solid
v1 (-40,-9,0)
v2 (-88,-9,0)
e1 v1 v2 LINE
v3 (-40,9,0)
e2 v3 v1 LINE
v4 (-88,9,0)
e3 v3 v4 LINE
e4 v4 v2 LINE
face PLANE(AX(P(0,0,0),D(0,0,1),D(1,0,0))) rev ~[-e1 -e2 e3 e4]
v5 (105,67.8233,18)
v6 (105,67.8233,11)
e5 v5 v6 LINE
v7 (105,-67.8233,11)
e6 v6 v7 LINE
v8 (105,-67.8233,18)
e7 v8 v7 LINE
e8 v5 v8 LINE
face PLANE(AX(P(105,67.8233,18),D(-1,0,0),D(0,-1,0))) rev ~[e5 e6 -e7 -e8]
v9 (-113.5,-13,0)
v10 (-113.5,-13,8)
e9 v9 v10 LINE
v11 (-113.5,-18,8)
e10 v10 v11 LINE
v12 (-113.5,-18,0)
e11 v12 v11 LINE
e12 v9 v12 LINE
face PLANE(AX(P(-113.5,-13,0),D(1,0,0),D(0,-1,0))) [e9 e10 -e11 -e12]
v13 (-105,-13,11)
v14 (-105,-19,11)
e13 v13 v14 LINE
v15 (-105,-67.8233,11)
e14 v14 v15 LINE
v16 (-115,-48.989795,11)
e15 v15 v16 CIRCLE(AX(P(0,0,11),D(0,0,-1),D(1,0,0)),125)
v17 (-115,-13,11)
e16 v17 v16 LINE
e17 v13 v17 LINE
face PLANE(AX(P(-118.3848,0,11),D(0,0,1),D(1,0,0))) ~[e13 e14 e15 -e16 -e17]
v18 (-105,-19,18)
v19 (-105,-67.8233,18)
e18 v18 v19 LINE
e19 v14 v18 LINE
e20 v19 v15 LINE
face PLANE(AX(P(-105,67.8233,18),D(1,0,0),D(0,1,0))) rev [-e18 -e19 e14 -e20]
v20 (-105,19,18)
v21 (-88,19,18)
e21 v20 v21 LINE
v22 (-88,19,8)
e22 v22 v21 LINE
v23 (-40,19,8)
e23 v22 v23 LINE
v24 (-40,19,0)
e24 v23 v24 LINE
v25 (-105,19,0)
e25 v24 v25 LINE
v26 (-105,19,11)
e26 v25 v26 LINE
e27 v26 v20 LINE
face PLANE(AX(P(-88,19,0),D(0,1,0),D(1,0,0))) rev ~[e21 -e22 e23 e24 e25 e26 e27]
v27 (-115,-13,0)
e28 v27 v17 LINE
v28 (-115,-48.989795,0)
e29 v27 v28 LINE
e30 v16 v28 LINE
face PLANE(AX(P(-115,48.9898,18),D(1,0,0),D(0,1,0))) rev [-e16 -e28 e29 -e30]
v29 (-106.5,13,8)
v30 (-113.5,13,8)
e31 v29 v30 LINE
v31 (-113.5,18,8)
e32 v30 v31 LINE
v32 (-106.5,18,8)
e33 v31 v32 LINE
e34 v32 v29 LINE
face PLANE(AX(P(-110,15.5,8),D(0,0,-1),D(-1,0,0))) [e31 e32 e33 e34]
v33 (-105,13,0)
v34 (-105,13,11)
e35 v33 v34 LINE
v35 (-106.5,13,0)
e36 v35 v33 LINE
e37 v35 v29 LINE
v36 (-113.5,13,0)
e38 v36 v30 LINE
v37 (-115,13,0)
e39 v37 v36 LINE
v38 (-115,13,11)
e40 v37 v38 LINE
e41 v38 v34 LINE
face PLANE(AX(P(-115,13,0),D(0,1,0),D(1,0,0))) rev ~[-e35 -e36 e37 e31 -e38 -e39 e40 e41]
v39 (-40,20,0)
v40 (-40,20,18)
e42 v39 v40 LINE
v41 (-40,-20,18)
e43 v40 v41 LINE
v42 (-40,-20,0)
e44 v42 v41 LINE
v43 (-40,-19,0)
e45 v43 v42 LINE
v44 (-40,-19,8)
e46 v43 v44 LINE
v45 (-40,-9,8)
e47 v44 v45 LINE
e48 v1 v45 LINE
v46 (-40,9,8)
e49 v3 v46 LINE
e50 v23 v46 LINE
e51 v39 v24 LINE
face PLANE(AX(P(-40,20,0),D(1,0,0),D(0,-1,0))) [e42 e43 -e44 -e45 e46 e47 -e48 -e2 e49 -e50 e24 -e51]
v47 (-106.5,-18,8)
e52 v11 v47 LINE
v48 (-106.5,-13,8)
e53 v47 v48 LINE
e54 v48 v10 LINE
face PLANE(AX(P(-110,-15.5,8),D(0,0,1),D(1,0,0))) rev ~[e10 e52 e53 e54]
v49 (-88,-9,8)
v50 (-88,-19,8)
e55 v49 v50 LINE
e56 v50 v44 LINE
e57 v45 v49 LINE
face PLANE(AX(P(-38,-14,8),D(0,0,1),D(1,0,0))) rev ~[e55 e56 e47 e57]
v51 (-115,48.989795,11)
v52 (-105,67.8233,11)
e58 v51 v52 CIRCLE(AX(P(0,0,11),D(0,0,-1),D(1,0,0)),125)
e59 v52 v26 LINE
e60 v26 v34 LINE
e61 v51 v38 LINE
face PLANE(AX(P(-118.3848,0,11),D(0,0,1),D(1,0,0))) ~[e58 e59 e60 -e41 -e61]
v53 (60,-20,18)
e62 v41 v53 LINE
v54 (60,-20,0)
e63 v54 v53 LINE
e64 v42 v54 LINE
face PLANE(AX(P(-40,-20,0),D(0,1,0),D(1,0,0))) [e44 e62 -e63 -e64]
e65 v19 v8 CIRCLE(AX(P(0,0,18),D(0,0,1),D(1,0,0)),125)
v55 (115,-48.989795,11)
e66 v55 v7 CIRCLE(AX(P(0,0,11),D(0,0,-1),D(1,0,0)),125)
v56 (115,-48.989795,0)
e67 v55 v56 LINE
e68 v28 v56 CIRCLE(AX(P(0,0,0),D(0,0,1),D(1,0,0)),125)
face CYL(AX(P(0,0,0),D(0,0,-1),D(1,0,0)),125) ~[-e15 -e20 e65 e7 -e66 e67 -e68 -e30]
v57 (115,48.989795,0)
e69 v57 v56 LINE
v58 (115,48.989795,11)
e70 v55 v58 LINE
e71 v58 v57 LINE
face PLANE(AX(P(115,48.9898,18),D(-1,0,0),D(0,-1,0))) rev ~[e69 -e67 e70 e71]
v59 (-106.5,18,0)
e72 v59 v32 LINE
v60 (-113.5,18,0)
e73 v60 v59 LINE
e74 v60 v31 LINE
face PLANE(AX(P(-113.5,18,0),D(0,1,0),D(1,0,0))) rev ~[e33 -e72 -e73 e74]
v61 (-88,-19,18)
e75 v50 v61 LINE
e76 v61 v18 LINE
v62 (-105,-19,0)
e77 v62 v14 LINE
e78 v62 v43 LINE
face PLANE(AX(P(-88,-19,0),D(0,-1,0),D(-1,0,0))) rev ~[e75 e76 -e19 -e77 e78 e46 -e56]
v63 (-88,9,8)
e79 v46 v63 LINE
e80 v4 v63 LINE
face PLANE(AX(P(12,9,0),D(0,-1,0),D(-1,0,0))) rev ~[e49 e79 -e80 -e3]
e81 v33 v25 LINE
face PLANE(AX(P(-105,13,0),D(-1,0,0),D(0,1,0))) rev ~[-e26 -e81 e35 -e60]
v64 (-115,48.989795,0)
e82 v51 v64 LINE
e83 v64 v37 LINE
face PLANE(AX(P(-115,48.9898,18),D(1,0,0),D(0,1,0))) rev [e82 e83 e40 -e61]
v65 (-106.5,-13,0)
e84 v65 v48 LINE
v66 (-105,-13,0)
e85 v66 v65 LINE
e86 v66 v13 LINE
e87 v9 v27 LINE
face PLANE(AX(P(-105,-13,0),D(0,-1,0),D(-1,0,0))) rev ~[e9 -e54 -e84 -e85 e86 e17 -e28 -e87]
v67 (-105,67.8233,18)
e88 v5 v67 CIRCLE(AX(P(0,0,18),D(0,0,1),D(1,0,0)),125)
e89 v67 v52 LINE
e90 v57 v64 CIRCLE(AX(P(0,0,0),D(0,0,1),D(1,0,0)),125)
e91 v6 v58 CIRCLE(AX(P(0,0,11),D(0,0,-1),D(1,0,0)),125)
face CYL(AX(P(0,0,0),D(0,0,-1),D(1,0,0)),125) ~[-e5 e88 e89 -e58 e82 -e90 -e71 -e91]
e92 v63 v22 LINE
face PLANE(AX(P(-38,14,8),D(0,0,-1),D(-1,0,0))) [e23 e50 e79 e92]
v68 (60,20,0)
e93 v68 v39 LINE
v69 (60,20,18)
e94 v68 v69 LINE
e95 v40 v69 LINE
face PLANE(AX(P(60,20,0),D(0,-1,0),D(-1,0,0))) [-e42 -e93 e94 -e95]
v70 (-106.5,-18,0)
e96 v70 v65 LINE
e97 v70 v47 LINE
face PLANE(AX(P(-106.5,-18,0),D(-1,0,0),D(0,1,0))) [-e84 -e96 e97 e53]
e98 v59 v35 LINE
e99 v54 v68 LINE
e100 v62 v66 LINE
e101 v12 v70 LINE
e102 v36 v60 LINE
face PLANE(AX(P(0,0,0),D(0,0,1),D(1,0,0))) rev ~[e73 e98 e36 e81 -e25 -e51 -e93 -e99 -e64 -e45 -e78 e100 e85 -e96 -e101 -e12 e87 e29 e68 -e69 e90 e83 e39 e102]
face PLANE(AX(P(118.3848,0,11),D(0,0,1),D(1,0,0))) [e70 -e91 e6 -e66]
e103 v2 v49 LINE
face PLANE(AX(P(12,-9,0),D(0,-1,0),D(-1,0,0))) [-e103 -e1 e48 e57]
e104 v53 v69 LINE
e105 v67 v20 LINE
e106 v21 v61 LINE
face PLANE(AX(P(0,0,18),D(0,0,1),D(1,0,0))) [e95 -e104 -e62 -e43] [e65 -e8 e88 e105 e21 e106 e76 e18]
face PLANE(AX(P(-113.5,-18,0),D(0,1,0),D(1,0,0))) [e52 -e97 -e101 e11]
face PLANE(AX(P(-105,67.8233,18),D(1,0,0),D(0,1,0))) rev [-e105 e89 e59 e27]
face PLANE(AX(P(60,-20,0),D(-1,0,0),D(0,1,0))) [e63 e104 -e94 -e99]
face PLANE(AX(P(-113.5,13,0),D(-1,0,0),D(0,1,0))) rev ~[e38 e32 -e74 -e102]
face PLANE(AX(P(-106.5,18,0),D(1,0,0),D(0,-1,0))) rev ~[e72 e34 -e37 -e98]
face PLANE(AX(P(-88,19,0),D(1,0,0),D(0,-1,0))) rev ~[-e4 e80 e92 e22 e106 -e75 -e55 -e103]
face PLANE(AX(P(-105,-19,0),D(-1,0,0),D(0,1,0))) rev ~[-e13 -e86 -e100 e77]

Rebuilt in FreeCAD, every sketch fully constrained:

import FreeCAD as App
import Part
import Sketcher

V = App.Vector
Q = App.Units.Quantity

doc = App.newDocument("Part")
body = doc.addObject("PartDesign::Body", "Body")

# Sketch on XY plane
sketch1 = body.newObject("Sketcher::SketchObject", "Sketch")
sketch1.AttachmentSupport = (doc.getObject("XY_Plane"), [""])
sketch1.MapMode = "FlatFace"
sketch1.addGeometry(Part.Circle(V(0, 0, 0), V(0, 0, 1), 125), False)
sketch1.addConstraint([
    Sketcher.Constraint("Coincident", 0, 3, -1, 1),
    Sketcher.Constraint("Diameter", 0, Q("250 mm")),
])
pad1 = body.newObject("PartDesign::Pad", "Pad")
pad1.Profile = sketch1
pad1.Length = 18

# Sketch on XY plane
sketch2 = body.newObject("Sketcher::SketchObject", "Sketch001")
sketch2.AttachmentSupport = (doc.getObject("XY_Plane"), [""])
sketch2.MapMode = "FlatFace"
sketch2.AttachmentOffset = App.Placement(V(0, 0, 18), App.Rotation())
sketch2.addGeometry([
    Part.LineSegment(V(150, 49, 0), V(115, 49, 0)),
    Part.LineSegment(V(115, 49, 0), V(115, -49, 0)),
    Part.LineSegment(V(115, -49, 0), V(150, -49, 0)),
    Part.LineSegment(V(150, -49, 0), V(150, 49, 0)),
], False)
sketch2.addConstraint([
    Sketcher.Constraint("Coincident", 0, 2, 1, 1),
    Sketcher.Constraint("Coincident", 1, 2, 2, 1),
    Sketcher.Constraint("Coincident", 2, 2, 3, 1),
    Sketcher.Constraint("Coincident", 3, 2, 0, 1),
    Sketcher.Constraint("Horizontal", 0),
    Sketcher.Constraint("Vertical", 1),
    Sketcher.Constraint("Horizontal", 2),
    Sketcher.Constraint("Vertical", 3),
    Sketcher.Constraint("DistanceX", -1, 1, 0, 2, Q("115 mm")),
    Sketcher.Constraint("DistanceX", 0, 2, 0, 1, Q("34.504 mm")),
    Sketcher.Constraint("DistanceY", 1, 2, 1, 1, Q("97.9796 mm")),
    Sketcher.Constraint("DistanceY", -1, 1, 0, 2, Q("48.9898 mm")),
])
pocket1 = body.newObject("PartDesign::Pocket", "Pocket")
pocket1.Profile = sketch2
pocket1.Length = 18

# Sketch on XY plane
sketch3 = body.newObject("Sketcher::SketchObject", "Sketch002")
sketch3.AttachmentSupport = (doc.getObject("XY_Plane"), [""])
sketch3.MapMode = "FlatFace"
sketch3.AttachmentOffset = App.Placement(V(0, 0, 18), App.Rotation())
sketch3.addGeometry([
    Part.LineSegment(V(132, -68, 0), V(132, 68, 0)),
    Part.LineSegment(V(132, 68, 0), V(105, 68, 0)),
    Part.LineSegment(V(105, 68, 0), V(105, -68, 0)),
    Part.LineSegment(V(105, -68, 0), V(132, -68, 0)),
], False)
sketch3.addConstraint([
    Sketcher.Constraint("Coincident", 0, 2, 1, 1),
    Sketcher.Constraint("Coincident", 1, 2, 2, 1),
    Sketcher.Constraint("Coincident", 2, 2, 3, 1),
    Sketcher.Constraint("Coincident", 3, 2, 0, 1),
    Sketcher.Constraint("Vertical", 0),
    Sketcher.Constraint("Horizontal", 1),
    Sketcher.Constraint("Vertical", 2),
    Sketcher.Constraint("Horizontal", 3),
    Sketcher.Constraint("DistanceX", -1, 1, 1, 2, Q("105 mm")),
    Sketcher.Constraint("DistanceX", 1, 2, 1, 1, Q("26.7696 mm")),
    Sketcher.Constraint("DistanceY", 0, 1, 0, 2, Q("135.6466 mm")),
    Sketcher.Constraint("DistanceY", -1, 1, 0, 2, Q("67.8233 mm")),
])
pocket2 = body.newObject("PartDesign::Pocket", "Pocket001")
pocket2.Profile = sketch3
pocket2.Length = 7
doc.recompute()

mirrored = body.newObject("PartDesign::Mirrored", "Mirrored")
mirrored.Originals = [pocket1, pocket2]
mirrored.MirrorPlane = (doc.getObject("YZ_Plane"), [""])
body.Tip = mirrored

# Sketch on XY plane
sketch4 = body.newObject("Sketcher::SketchObject", "Sketch003")
sketch4.AttachmentSupport = (doc.getObject("XY_Plane"), [""])
sketch4.MapMode = "FlatFace"
sketch4.addGeometry([
    Part.LineSegment(V(-115, -13, 0), V(-115, 13, 0)),  # 0
    Part.LineSegment(V(-115, 13, 0), V(-105, 13, 0)),  # 1
    Part.LineSegment(V(-105, 13, 0), V(-105, 19, 0)),  # 2
    Part.LineSegment(V(-105, 19, 0), V(-88, 19, 0)),  # 3
    Part.LineSegment(V(-88, 19, 0), V(-88, -19, 0)),  # 4
    Part.LineSegment(V(-88, -19, 0), V(-105, -19, 0)),  # 5
    Part.LineSegment(V(-105, -19, 0), V(-105, -13, 0)),  # 6
    Part.LineSegment(V(-105, -13, 0), V(-115, -13, 0)),  # 7
], False)
sketch4.addConstraint([
    Sketcher.Constraint("Coincident", 0, 2, 1, 1),
    Sketcher.Constraint("Coincident", 1, 2, 2, 1),
    Sketcher.Constraint("Coincident", 2, 2, 3, 1),
    Sketcher.Constraint("Coincident", 3, 2, 4, 1),
    Sketcher.Constraint("Coincident", 4, 2, 5, 1),
    Sketcher.Constraint("Coincident", 5, 2, 6, 1),
    Sketcher.Constraint("Coincident", 6, 2, 7, 1),
    Sketcher.Constraint("Coincident", 7, 2, 0, 1),
    Sketcher.Constraint("Vertical", 0),
    Sketcher.Constraint("Horizontal", 1),
    Sketcher.Constraint("Vertical", 2),
    Sketcher.Constraint("Horizontal", 3),
    Sketcher.Constraint("Vertical", 4),
    Sketcher.Constraint("Horizontal", 5),
    Sketcher.Constraint("Vertical", 6),
    Sketcher.Constraint("Horizontal", 7),
    Sketcher.Constraint("Symmetric", 2, 2, 5, 2, -1),
    Sketcher.Constraint("Equal", 2, 6),
    Sketcher.Constraint("DistanceX", 1, 2, -1, 1, Q("105 mm")),
    Sketcher.Constraint("DistanceX", 3, 2, -1, 1, Q("88 mm")),
    Sketcher.Constraint("DistanceX", 1, 1, 1, 2, Q("10 mm")),
    Sketcher.Constraint("DistanceY", 0, 1, 0, 2, Q("26 mm")),
    Sketcher.Constraint("DistanceY", 2, 1, 2, 2, Q("6 mm")),
])
pocket3 = body.newObject("PartDesign::Pocket", "Pocket002")
pocket3.Profile = sketch4
pocket3.Length = 18
pocket3.Reversed = True

# Sketch on XY plane
sketch5 = body.newObject("Sketcher::SketchObject", "Sketch004")
sketch5.AttachmentSupport = (doc.getObject("XY_Plane"), [""])
sketch5.MapMode = "FlatFace"
sketch5.addGeometry([
    Part.LineSegment(V(-88, 9, 0), V(-88, 19, 0)),  # 0
    Part.LineSegment(V(-88, 19, 0), V(12, 19, 0)),  # 1
    Part.LineSegment(V(12, 19, 0), V(12, 9, 0)),  # 2
    Part.LineSegment(V(12, 9, 0), V(-88, 9, 0)),  # 3
    Part.LineSegment(V(12, -19, 0), V(-88, -19, 0)),  # 4
    Part.LineSegment(V(-88, -19, 0), V(-88, -9, 0)),  # 5
    Part.LineSegment(V(-88, -9, 0), V(12, -9, 0)),  # 6
    Part.LineSegment(V(12, -9, 0), V(12, -19, 0)),  # 7
], False)
sketch5.addConstraint([
    Sketcher.Constraint("Coincident", 0, 2, 1, 1),
    Sketcher.Constraint("Coincident", 1, 2, 2, 1),
    Sketcher.Constraint("Coincident", 2, 2, 3, 1),
    Sketcher.Constraint("Coincident", 3, 2, 0, 1),
    Sketcher.Constraint("Coincident", 4, 2, 5, 1),
    Sketcher.Constraint("Coincident", 5, 2, 6, 1),
    Sketcher.Constraint("Coincident", 6, 2, 7, 1),
    Sketcher.Constraint("Coincident", 7, 2, 4, 1),
    Sketcher.Constraint("Vertical", 0),
    Sketcher.Constraint("Horizontal", 1),
    Sketcher.Constraint("Vertical", 2),
    Sketcher.Constraint("Horizontal", 3),
    Sketcher.Constraint("Horizontal", 4),
    Sketcher.Constraint("Vertical", 5),
    Sketcher.Constraint("Horizontal", 6),
    Sketcher.Constraint("Vertical", 7),
    Sketcher.Constraint("Symmetric", 0, 2, 4, 2, -1),
    Sketcher.Constraint("Symmetric", 2, 2, 6, 2, -1),
    Sketcher.Constraint("DistanceX", 1, 1, 1, 2, Q("100 mm")),
    Sketcher.Constraint("DistanceY", 0, 1, 0, 2, Q("10 mm")),
    Sketcher.Constraint("DistanceX", 0, 2, -1, 1, Q("88 mm")),
    Sketcher.Constraint("DistanceY", -1, 1, 0, 2, Q("19 mm")),
])
pocket4 = body.newObject("PartDesign::Pocket", "Pocket003")
pocket4.Profile = sketch5
pocket4.Length = 8
pocket4.Reversed = True

# Sketch on XY plane
sketch6 = body.newObject("Sketcher::SketchObject", "Sketch005")
sketch6.AttachmentSupport = (doc.getObject("XY_Plane"), [""])
sketch6.MapMode = "FlatFace"
sketch6.addGeometry([
    Part.LineSegment(V(-106, 13, 0), V(-114, 13, 0)),  # 0
    Part.LineSegment(V(-114, 13, 0), V(-114, 18, 0)),  # 1
    Part.LineSegment(V(-114, 18, 0), V(-106, 18, 0)),  # 2
    Part.LineSegment(V(-106, 18, 0), V(-106, 13, 0)),  # 3
    Part.LineSegment(V(-114, -18, 0), V(-114, -13, 0)),  # 4
    Part.LineSegment(V(-114, -13, 0), V(-106, -13, 0)),  # 5
    Part.LineSegment(V(-106, -13, 0), V(-106, -18, 0)),  # 6
    Part.LineSegment(V(-106, -18, 0), V(-114, -18, 0)),  # 7
], False)
sketch6.addConstraint([
    Sketcher.Constraint("Coincident", 0, 2, 1, 1),
    Sketcher.Constraint("Coincident", 1, 2, 2, 1),
    Sketcher.Constraint("Coincident", 2, 2, 3, 1),
    Sketcher.Constraint("Coincident", 3, 2, 0, 1),
    Sketcher.Constraint("Coincident", 4, 2, 5, 1),
    Sketcher.Constraint("Coincident", 5, 2, 6, 1),
    Sketcher.Constraint("Coincident", 6, 2, 7, 1),
    Sketcher.Constraint("Coincident", 7, 2, 4, 1),
    Sketcher.Constraint("Horizontal", 0),
    Sketcher.Constraint("Vertical", 1),
    Sketcher.Constraint("Horizontal", 2),
    Sketcher.Constraint("Vertical", 3),
    Sketcher.Constraint("Vertical", 4),
    Sketcher.Constraint("Horizontal", 5),
    Sketcher.Constraint("Vertical", 6),
    Sketcher.Constraint("Horizontal", 7),
    Sketcher.Constraint("Symmetric", 0, 2, 4, 2, -1),
    Sketcher.Constraint("Symmetric", 2, 2, 6, 2, -1),
    Sketcher.Constraint("DistanceY", -1, 1, 0, 2, Q("13 mm")),
    Sketcher.Constraint("DistanceX", 0, 2, 0, 1, Q("7 mm")),
    Sketcher.Constraint("DistanceY", 1, 1, 1, 2, Q("5 mm")),
    Sketcher.Constraint("DistanceX", 0, 2, -1, 1, Q("113.5 mm")),
])
pocket5 = body.newObject("PartDesign::Pocket", "Pocket004")
pocket5.Profile = sketch6
pocket5.Length = 8
pocket5.Reversed = True

# Sketch on XY plane
sketch7 = body.newObject("Sketcher::SketchObject", "Sketch006")
sketch7.AttachmentSupport = (doc.getObject("XY_Plane"), [""])
sketch7.MapMode = "FlatFace"
sketch7.addGeometry([
    Part.LineSegment(V(-40, 20, 0), V(60, 20, 0)),
    Part.LineSegment(V(60, 20, 0), V(60, -20, 0)),
    Part.LineSegment(V(60, -20, 0), V(-40, -20, 0)),
    Part.LineSegment(V(-40, -20, 0), V(-40, 20, 0)),
], False)
sketch7.addConstraint([
    Sketcher.Constraint("Coincident", 0, 2, 1, 1),
    Sketcher.Constraint("Coincident", 1, 2, 2, 1),
    Sketcher.Constraint("Coincident", 2, 2, 3, 1),
    Sketcher.Constraint("Coincident", 3, 2, 0, 1),
    Sketcher.Constraint("Horizontal", 0),
    Sketcher.Constraint("Vertical", 1),
    Sketcher.Constraint("Horizontal", 2),
    Sketcher.Constraint("Vertical", 3),
    Sketcher.Constraint("DistanceX", 0, 1, 0, 2, Q("100 mm")),
    Sketcher.Constraint("DistanceY", 1, 2, 1, 1, Q("40 mm")),
    Sketcher.Constraint("DistanceX", -1, 1, 0, 2, Q("60 mm")),
    Sketcher.Constraint("DistanceY", -1, 1, 0, 2, Q("20 mm")),
])
pocket6 = body.newObject("PartDesign::Pocket", "Pocket005")
pocket6.Profile = sketch7
pocket6.Length = 18
pocket6.Reversed = True

doc.recompute()
